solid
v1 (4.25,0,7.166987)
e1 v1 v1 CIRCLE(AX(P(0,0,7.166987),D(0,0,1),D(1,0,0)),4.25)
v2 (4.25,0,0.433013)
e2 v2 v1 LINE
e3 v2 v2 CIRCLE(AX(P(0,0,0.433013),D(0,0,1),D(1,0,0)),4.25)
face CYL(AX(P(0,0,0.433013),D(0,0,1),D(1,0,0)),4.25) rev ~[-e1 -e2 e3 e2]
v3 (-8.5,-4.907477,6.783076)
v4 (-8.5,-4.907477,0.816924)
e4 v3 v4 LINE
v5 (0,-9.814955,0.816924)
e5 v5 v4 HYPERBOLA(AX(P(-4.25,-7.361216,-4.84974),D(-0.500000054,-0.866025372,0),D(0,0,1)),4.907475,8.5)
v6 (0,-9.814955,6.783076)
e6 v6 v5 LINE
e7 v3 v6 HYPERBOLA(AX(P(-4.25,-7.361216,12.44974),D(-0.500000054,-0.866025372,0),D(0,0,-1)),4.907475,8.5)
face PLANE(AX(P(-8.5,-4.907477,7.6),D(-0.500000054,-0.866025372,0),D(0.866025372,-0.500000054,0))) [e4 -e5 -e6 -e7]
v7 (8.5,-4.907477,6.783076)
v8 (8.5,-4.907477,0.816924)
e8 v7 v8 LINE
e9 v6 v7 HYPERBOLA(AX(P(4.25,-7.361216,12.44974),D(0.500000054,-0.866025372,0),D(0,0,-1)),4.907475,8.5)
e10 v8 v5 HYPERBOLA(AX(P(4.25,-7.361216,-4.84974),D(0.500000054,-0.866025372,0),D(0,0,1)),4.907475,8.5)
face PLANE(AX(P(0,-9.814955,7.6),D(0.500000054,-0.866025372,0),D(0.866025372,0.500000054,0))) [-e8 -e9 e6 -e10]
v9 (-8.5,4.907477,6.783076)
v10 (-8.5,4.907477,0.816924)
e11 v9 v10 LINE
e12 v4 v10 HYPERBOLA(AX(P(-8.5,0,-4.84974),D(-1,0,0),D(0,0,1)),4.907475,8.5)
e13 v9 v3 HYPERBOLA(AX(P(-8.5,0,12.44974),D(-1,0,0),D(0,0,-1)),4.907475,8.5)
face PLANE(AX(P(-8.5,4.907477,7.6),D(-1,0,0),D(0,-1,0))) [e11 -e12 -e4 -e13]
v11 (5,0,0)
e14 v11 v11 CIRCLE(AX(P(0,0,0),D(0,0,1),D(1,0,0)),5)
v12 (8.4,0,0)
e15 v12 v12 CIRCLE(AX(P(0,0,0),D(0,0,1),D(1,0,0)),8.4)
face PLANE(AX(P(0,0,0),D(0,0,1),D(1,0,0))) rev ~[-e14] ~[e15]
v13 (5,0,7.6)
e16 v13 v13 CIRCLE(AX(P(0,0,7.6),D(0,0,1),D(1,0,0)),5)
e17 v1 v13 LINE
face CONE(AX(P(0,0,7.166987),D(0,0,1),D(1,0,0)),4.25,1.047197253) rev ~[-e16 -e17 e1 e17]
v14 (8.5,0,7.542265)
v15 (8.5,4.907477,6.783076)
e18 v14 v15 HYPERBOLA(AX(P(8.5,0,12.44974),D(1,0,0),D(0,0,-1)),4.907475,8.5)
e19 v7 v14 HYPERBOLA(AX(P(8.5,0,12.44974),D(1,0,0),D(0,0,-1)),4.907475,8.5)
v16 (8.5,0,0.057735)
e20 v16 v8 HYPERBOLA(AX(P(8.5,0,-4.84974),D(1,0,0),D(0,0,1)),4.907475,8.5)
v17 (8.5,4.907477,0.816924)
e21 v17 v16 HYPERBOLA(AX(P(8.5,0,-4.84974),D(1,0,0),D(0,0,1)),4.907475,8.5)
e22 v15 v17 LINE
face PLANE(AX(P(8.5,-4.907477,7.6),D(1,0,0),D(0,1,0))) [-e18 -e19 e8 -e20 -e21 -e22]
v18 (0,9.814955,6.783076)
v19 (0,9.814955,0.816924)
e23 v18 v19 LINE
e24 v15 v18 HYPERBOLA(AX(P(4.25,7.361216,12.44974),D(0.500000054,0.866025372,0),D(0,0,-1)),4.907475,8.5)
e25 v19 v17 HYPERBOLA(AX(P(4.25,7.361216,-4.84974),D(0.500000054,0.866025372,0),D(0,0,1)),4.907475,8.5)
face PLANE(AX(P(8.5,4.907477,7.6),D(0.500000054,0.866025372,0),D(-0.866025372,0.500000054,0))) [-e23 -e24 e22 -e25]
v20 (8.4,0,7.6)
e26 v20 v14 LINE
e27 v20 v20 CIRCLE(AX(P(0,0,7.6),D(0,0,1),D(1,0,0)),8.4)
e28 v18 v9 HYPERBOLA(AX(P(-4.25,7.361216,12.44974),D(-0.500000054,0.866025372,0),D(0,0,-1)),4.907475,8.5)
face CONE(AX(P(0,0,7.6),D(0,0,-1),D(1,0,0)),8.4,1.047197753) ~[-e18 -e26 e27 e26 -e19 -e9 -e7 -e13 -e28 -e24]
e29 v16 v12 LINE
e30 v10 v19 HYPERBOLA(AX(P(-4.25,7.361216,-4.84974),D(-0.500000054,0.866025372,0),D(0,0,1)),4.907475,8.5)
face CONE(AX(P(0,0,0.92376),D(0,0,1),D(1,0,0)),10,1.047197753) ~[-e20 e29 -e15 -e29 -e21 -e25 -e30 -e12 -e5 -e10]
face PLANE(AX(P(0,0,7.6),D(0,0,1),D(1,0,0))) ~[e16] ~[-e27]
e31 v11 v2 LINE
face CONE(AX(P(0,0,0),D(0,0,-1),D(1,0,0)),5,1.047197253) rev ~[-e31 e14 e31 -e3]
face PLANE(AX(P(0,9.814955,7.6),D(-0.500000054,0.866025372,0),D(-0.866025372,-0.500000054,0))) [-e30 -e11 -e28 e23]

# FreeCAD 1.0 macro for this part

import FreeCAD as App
import Part
import Sketcher
Q = App.Units.Quantity


def add_polygon(sketch, points):
    """Adds a closed chain of lines whose ends are joined by coincident constraints."""
    first, n = sketch.GeometryCount, len(points)
    for a, b in zip(points, points[1:] + points[:1]):
        sketch.addGeometry(Part.LineSegment(App.Vector(*a, 0), App.Vector(*b, 0)), False)
    for i in range(n):
        sketch.addConstraint(Sketcher.Constraint("Coincident", first + i, 2, first + (i + 1) % n, 1))

doc = App.newDocument("Part")
body = doc.addObject("PartDesign::Body", "Body")

sketch1 = body.newObject("Sketcher::SketchObject", "Sketch")
sketch1.AttachmentSupport = (doc.getObject("XZ_Plane"), [""])
sketch1.MapMode = "FlatFace"
add_polygon(sketch1, [(4.25, 0.433013), (5, 0), (8.4, 0), (10, 0.92376), (10, 6.67624), (8.4, 7.6), (5, 7.6), (4.25, 7.166987)])
sketch1.addConstraint([
    Sketcher.Constraint("Horizontal", 1),
    Sketcher.Constraint("Vertical", 3),
    Sketcher.Constraint("Horizontal", 5),
    Sketcher.Constraint("Vertical", 7),
    Sketcher.Constraint("PointOnObject", 0, 2, -1),
    Sketcher.Constraint("Parallel", 0, 4),
    Sketcher.Constraint("Parallel", 2, 6),
    Sketcher.Constraint("Vertical", 1, 2, 4, 2),
    Sketcher.Constraint("Vertical", 0, 2, 5, 2),
    Sketcher.Constraint("Equal", 2, 4),
    Sketcher.Constraint("Angle", 0, Q("-30.000017 deg")),
    Sketcher.Constraint("DistanceX", 1, 1, 1, 2, Q("3.4 mm")),
    Sketcher.Constraint("DistanceX", -1, 1, 0, 2, Q("5 mm")),
    Sketcher.Constraint("DistanceX", -1, 1, 2, 2, Q("10 mm")),
    Sketcher.Constraint("DistanceY", -1, 1, 4, 2, Q("7.6 mm")),
    Sketcher.Constraint("DistanceX", -1, 1, 6, 2, Q("4.25 mm")),
])
revolution = body.newObject("PartDesign::Revolution", "Revolution")
revolution.Profile = sketch1
revolution.ReferenceAxis = (sketch1, ["V_Axis"])
revolution.Angle = 360

sketch2 = body.newObject("Sketcher::SketchObject", "Sketch001")
sketch2.AttachmentSupport = (doc.getObject("XY_Plane"), [""])
sketch2.MapMode = "FlatFace"
sketch2.AttachmentOffset = App.Placement(App.Vector(0, 0, 7.6), App.Rotation())
sketch2.addGeometry(Part.Circle(App.Vector(0, 0, 0), App.Vector(0, 0, 1), 10), False)
add_polygon(sketch2, [(8.5, 4.907477), (8.5, -4.907477), (0, -9.814955), (-8.5, -4.907477), (-8.5, 4.907477), (0, 9.814955)])
sketch2.addConstraint([
    Sketcher.Constraint("Vertical", 1),
    Sketcher.Constraint("Vertical", 4),
    Sketcher.Constraint("Coincident", 0, 3, -1, 1),
    Sketcher.Constraint("Symmetric", 1, 2, 4, 2, -1, 1),
    Sketcher.Constraint("Symmetric", 2, 2, 5, 2, -1, 1),
    Sketcher.Constraint("PointOnObject", 2, 2, -2),
    Sketcher.Constraint("Parallel", 3, 6),
    Sketcher.Constraint("Horizontal", 1, 2, 3, 2),
    Sketcher.Constraint("Diameter", 0, Q("20 mm")),
    Sketcher.Constraint("Angle", 2, Q("-149.999996 deg")),
    Sketcher.Constraint("DistanceX", 3, 2, 1, 2, Q("17 mm")),
    Sketcher.Constraint("DistanceY", 1, 2, 1, 1, Q("9.814954 mm")),
])
pocket1 = body.newObject("PartDesign::Pocket", "Pocket")
pocket1.Profile = sketch2
pocket1.Length = 7.6

doc.recompute()
